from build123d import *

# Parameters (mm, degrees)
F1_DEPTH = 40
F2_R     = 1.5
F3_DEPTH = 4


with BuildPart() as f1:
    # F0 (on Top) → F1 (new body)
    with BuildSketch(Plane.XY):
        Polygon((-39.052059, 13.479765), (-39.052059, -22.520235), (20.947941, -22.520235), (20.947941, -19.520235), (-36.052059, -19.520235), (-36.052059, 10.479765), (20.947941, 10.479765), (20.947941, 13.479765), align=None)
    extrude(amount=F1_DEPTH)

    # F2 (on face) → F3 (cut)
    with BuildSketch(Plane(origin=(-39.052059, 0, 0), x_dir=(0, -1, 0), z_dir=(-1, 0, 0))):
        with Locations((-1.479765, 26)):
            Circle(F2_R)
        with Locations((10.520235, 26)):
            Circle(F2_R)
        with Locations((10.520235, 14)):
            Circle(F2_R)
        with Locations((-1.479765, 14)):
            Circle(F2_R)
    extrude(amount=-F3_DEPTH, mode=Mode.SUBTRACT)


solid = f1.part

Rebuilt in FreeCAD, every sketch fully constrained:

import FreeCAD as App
import Part
import Sketcher

V = App.Vector
Q = App.Units.Quantity


def add_polygon(sketch, points):
    """Adds a closed chain of lines whose ends are joined by coincident constraints."""
    first, n = sketch.GeometryCount, len(points)
    for a, b in zip(points, points[1:] + points[:1]):
        sketch.addGeometry(Part.LineSegment(App.Vector(*a, 0), App.Vector(*b, 0)), False)
    for i in range(n):
        sketch.addConstraint(Sketcher.Constraint("Coincident", first + i, 2, first + (i + 1) % n, 1))

doc = App.newDocument("Part")
body = doc.addObject("PartDesign::Body", "Body")

# Sketch on XY plane
sketch1 = body.newObject("Sketcher::SketchObject", "Sketch")
sketch1.AttachmentSupport = (doc.getObject("XY_Plane"), [""])
sketch1.MapMode = "FlatFace"
add_polygon(sketch1, [(-39.1, 13.5), (-39.1, -22.5), (20.9, -22.5), (20.9, -19.5), (-36.1, -19.5), (-36.1, 10.5), (20.9, 10.5), (20.9, 13.5)])  # lines 0-7
sketch1.addConstraint(Sketcher.Constraint("Vertical", 0))
sketch1.addConstraint(Sketcher.Constraint("Horizontal", 1))
sketch1.addConstraint(Sketcher.Constraint("Vertical", 2))
sketch1.addConstraint(Sketcher.Constraint("Horizontal", 3))
sketch1.addConstraint(Sketcher.Constraint("Vertical", 4))
sketch1.addConstraint(Sketcher.Constraint("Horizontal", 5))
sketch1.addConstraint(Sketcher.Constraint("Vertical", 6))
sketch1.addConstraint(Sketcher.Constraint("Horizontal", 7))
sketch1.addConstraint(Sketcher.Constraint("Vertical", 2, 2, 5, 2))
sketch1.addConstraint(Sketcher.Constraint("Equal", 2, 6))
sketch1.addConstraint(Sketcher.Constraint("DistanceX", 1, 1, 1, 2, Q("60 mm")))
sketch1.addConstraint(Sketcher.Constraint("DistanceX", 3, 2, 3, 1, Q("57 mm")))
sketch1.addConstraint(Sketcher.Constraint("DistanceY", 0, 2, 0, 1, Q("36 mm")))
sketch1.addConstraint(Sketcher.Constraint("DistanceY", 2, 1, 2, 2, Q("3 mm")))
sketch1.addConstraint(Sketcher.Constraint("DistanceX", 0, 2, -1, 1, Q("39.052059 mm")))
sketch1.addConstraint(Sketcher.Constraint("DistanceY", 0, 2, -1, 1, Q("22.520235 mm")))
pad1 = body.newObject("PartDesign::Pad", "Pad")
pad1.Profile = sketch1
pad1.Length = 40

# Sketch on YZ plane
sketch2 = body.newObject("Sketcher::SketchObject", "Sketch001")
sketch2.AttachmentSupport = (doc.getObject("YZ_Plane"), [""])
sketch2.MapMode = "FlatFace"
sketch2.AttachmentOffset = App.Placement(V(0, 0, -39.052059), App.Rotation())
sketch2.addGeometry(Part.Circle(V(1.5, 26, 0), V(0, 0, 1), 1.5), False)
sketch2.addGeometry(Part.Circle(V(-10.5, 26, 0), V(0, 0, 1), 1.5), False)
sketch2.addGeometry(Part.Circle(V(-10.5, 14, 0), V(0, 0, 1), 1.5), False)
sketch2.addGeometry(Part.Circle(V(1.5, 14, 0), V(0, 0, 1), 1.5), False)
sketch2.addConstraint(Sketcher.Constraint("Equal", 0, 1))
sketch2.addConstraint(Sketcher.Constraint("Equal", 1, 2))
sketch2.addConstraint(Sketcher.Constraint("Equal", 2, 3))
sketch2.addConstraint(Sketcher.Constraint("Horizontal", 0, 3, 1, 3))
sketch2.addConstraint(Sketcher.Constraint("Horizontal", 2, 3, 3, 3))
sketch2.addConstraint(Sketcher.Constraint("Vertical", 1, 3, 2, 3))
sketch2.addConstraint(Sketcher.Constraint("Vertical", 0, 3, 3, 3))
sketch2.addConstraint(Sketcher.Constraint("Diameter", 0, Q("3 mm")))
sketch2.addConstraint(Sketcher.Constraint("DistanceY", -1, 1, 0, 3, Q("26 mm")))
sketch2.addConstraint(Sketcher.Constraint("DistanceY", -1, 1, 2, 3, Q("14 mm")))
sketch2.addConstraint(Sketcher.Constraint("DistanceX", 1, 3, 0, 3, Q("12 mm")))
sketch2.addConstraint(Sketcher.Constraint("DistanceX", -1, 1, 0, 3, Q("1.479765 mm")))
pocket1 = body.newObject("PartDesign::Pocket", "Pocket")
pocket1.Profile = sketch2
pocket1.Length = 4
pocket1.Reversed = True

doc.recompute()
